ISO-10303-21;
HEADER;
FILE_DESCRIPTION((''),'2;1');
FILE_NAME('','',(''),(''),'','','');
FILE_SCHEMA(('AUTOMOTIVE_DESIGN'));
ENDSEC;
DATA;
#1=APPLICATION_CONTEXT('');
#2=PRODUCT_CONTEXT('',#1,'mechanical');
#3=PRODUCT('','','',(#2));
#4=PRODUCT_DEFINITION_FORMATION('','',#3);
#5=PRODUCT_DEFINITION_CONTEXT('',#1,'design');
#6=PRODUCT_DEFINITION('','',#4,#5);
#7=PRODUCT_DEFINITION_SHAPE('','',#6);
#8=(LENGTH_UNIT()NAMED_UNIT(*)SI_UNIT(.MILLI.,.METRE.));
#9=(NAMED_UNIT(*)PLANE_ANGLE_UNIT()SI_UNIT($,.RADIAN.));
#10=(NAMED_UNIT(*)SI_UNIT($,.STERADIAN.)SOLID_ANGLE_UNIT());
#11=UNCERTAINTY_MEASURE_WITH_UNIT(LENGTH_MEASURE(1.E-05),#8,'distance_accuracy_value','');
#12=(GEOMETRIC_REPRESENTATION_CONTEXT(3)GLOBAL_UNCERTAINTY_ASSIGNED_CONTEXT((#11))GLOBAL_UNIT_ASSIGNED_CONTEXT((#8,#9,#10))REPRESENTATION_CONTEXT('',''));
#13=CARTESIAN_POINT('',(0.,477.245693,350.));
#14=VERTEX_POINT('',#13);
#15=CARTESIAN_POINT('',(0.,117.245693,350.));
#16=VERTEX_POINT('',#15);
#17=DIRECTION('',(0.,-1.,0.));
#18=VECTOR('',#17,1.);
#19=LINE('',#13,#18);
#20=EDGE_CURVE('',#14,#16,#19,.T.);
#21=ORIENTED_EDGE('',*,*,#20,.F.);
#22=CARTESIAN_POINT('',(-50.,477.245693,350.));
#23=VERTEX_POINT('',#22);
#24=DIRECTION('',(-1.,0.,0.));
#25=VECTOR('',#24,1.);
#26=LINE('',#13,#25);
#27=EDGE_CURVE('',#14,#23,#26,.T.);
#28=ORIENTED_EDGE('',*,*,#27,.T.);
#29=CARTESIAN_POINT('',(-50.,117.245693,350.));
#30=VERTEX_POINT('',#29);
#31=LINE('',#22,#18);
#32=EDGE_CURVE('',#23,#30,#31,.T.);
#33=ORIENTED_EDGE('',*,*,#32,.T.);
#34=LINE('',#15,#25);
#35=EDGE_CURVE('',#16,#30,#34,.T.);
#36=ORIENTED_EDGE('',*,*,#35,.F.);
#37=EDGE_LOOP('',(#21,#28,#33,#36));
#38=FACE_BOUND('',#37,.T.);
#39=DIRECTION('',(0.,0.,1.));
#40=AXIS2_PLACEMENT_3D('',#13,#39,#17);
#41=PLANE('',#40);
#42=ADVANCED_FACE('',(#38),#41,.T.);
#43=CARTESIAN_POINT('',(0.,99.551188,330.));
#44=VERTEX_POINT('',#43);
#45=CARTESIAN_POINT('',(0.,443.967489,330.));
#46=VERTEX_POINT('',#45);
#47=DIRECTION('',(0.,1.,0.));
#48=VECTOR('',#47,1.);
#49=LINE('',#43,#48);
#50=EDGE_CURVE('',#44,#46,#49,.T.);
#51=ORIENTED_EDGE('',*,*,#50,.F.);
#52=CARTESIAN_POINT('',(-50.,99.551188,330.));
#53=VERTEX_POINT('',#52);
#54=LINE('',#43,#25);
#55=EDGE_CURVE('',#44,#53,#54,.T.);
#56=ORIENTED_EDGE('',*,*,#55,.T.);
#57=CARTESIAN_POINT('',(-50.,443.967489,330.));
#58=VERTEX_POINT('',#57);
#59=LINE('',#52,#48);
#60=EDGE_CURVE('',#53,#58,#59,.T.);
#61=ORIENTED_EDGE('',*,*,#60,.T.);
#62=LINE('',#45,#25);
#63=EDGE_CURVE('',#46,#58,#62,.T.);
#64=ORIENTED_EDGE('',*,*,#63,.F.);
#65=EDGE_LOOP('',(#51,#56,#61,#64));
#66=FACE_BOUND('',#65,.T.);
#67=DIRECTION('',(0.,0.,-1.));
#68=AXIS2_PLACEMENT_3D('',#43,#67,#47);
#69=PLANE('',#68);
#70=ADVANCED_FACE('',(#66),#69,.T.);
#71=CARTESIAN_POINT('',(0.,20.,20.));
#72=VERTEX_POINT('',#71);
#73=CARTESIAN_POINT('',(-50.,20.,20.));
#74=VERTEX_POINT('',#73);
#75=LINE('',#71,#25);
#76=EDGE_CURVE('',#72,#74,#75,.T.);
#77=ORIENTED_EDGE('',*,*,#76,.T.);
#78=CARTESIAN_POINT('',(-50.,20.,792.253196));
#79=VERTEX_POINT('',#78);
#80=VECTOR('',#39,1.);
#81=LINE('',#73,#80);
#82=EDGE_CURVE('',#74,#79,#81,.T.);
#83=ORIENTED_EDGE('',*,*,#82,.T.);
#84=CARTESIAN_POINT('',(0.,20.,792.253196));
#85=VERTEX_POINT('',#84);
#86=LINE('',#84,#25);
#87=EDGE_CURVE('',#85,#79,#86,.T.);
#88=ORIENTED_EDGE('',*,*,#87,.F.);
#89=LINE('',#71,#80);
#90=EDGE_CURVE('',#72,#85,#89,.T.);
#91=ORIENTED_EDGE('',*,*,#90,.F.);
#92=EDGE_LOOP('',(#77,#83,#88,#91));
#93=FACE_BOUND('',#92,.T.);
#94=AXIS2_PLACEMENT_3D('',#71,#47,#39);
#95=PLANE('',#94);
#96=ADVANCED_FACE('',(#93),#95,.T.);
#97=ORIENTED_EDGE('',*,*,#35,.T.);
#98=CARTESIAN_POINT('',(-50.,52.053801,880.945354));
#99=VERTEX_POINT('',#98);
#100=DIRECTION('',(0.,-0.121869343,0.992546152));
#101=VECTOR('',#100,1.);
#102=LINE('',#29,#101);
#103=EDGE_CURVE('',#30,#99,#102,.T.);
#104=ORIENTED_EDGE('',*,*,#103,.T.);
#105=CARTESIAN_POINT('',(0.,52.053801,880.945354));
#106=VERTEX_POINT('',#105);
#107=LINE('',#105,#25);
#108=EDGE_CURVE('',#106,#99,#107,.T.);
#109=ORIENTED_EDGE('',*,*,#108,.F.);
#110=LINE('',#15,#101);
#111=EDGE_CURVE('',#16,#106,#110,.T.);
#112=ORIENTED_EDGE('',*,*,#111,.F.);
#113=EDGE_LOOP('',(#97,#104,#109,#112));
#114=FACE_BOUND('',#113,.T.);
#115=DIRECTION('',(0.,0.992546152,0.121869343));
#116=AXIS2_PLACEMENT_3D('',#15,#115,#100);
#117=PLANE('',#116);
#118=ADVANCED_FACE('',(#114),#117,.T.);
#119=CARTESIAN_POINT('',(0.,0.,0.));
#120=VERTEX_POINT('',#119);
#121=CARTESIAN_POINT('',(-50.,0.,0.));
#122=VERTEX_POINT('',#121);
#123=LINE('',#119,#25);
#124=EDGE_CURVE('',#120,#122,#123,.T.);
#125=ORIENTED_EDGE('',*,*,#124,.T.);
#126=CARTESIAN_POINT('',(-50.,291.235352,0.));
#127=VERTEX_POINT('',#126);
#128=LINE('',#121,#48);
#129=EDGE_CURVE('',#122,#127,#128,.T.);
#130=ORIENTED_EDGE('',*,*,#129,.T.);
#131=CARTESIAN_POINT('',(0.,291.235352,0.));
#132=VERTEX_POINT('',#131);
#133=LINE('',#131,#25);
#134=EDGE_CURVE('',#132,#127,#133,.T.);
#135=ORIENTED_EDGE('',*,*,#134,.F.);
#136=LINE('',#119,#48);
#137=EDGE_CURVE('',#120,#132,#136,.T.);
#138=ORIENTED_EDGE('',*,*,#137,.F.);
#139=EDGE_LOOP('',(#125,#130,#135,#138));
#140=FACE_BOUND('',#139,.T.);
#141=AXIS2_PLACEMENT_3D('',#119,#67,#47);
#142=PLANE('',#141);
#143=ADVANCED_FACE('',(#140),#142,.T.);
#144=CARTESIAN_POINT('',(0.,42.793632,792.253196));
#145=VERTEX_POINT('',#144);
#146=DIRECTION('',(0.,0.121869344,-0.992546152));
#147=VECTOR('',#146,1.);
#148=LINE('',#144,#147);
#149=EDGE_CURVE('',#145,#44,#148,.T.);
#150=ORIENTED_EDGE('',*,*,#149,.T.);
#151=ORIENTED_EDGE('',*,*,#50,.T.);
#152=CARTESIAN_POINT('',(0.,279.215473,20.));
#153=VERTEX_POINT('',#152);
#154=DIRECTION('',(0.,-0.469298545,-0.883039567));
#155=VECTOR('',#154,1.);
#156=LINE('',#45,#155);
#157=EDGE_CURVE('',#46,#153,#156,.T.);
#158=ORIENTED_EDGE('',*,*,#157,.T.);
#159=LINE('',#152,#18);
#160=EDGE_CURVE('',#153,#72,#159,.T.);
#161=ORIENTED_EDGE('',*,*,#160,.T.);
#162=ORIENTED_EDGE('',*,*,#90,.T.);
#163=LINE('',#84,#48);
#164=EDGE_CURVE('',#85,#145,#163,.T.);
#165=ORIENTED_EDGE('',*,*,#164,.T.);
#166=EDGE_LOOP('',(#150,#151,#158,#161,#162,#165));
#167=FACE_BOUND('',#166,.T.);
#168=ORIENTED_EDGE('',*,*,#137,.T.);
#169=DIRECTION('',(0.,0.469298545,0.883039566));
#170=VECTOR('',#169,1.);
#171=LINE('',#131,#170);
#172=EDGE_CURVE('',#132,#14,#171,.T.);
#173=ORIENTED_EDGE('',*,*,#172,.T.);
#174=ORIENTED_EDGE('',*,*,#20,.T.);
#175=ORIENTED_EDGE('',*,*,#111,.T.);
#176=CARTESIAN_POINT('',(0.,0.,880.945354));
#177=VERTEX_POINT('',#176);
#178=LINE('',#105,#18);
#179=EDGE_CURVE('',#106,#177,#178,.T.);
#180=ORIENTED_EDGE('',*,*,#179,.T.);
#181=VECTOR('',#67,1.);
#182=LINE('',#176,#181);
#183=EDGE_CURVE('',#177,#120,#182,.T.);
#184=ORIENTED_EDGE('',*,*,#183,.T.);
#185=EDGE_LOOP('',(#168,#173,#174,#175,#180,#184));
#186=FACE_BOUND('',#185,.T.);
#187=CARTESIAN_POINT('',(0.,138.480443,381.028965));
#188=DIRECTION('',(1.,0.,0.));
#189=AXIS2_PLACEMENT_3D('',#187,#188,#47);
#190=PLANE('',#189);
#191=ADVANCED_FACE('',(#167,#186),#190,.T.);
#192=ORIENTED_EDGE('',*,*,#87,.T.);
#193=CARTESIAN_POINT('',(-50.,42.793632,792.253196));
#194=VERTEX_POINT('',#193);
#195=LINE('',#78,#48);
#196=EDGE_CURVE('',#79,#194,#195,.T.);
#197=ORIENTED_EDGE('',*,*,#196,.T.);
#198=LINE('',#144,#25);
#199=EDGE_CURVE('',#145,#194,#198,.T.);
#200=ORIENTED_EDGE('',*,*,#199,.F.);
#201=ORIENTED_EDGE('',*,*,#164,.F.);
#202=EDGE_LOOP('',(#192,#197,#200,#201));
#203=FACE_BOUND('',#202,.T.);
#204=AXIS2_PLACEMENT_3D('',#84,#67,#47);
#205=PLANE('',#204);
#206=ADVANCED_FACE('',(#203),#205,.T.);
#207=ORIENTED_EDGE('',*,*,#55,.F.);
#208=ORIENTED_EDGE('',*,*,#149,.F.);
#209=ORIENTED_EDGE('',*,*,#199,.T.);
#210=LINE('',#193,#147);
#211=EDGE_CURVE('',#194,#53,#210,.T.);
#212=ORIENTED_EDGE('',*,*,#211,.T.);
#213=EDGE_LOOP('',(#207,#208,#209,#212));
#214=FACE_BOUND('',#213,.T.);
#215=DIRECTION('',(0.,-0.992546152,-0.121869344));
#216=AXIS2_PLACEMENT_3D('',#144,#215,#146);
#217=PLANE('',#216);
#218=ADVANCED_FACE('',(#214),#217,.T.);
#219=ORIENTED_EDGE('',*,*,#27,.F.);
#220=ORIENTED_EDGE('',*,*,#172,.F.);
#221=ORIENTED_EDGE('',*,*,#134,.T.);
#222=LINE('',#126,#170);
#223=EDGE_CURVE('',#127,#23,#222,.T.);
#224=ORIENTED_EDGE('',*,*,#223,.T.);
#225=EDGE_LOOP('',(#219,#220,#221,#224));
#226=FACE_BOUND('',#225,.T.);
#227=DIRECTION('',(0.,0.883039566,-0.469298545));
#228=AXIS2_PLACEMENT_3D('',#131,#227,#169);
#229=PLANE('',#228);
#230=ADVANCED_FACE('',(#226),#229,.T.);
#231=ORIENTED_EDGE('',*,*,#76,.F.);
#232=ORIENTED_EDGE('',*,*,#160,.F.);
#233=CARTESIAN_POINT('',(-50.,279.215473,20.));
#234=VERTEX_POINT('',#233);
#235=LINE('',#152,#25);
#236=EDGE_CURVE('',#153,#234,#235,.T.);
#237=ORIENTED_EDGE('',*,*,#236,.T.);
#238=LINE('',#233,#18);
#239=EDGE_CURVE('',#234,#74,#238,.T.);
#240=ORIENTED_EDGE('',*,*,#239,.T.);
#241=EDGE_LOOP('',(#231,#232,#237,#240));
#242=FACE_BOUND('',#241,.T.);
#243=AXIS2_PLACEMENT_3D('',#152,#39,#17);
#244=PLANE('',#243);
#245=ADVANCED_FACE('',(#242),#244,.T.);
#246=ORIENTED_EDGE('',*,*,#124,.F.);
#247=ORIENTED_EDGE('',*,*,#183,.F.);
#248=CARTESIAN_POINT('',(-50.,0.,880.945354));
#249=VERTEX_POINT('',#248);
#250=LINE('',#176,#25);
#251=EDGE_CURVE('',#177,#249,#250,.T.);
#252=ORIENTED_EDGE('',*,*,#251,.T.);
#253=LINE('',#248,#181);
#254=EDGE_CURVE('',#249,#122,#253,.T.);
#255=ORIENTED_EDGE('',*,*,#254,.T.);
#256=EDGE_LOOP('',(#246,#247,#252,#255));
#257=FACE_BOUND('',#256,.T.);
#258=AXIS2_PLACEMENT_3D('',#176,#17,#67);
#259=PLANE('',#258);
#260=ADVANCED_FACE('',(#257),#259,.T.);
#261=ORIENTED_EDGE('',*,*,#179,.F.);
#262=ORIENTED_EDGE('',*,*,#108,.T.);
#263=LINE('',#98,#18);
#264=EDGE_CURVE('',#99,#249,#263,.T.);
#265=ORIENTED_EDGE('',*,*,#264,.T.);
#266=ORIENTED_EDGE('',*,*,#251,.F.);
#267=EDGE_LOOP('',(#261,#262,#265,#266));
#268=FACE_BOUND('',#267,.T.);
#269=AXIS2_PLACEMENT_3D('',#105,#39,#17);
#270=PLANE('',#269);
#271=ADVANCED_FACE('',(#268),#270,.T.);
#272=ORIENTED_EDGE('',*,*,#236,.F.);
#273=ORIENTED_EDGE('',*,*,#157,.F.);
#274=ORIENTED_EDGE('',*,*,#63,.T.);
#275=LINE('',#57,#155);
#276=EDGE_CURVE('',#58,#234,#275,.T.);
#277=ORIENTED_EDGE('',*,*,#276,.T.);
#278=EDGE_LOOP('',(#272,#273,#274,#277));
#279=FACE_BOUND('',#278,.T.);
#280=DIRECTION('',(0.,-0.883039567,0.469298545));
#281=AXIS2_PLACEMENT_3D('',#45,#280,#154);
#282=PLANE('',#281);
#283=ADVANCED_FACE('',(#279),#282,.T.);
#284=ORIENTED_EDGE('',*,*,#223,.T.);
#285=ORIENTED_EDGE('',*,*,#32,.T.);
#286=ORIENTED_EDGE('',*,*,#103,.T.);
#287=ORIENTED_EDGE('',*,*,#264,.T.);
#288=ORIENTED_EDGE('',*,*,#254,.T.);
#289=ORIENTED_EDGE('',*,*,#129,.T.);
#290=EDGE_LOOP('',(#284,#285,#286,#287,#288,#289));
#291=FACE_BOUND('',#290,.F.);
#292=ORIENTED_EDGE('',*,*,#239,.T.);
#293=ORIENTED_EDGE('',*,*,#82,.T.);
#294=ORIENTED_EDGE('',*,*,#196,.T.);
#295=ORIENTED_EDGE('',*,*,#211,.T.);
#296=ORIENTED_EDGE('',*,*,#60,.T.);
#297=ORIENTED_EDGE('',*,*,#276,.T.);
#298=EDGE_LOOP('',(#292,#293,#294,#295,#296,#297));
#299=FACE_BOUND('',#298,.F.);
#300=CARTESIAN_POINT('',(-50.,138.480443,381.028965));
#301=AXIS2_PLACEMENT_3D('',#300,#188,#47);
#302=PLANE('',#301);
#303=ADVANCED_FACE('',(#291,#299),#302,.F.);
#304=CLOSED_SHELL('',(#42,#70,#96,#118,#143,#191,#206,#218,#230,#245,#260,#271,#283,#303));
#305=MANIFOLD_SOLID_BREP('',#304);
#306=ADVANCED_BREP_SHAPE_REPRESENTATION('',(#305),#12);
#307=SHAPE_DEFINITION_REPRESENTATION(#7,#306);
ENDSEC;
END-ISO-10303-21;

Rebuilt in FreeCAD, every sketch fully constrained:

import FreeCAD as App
import Part
import Sketcher
Q = App.Units.Quantity


def add_polygon(sketch, points):
    """Adds a closed chain of lines whose ends are joined by coincident constraints."""
    first, n = sketch.GeometryCount, len(points)
    for a, b in zip(points, points[1:] + points[:1]):
        sketch.addGeometry(Part.LineSegment(App.Vector(*a, 0), App.Vector(*b, 0)), False)
    for i in range(n):
        sketch.addConstraint(Sketcher.Constraint("Coincident", first + i, 2, first + (i + 1) % n, 1))

doc = App.newDocument("Part")
body = doc.addObject("PartDesign::Body", "Body")

# Sketch on YZ plane
sketch1 = doc.addObject("Sketcher::SketchObject", "Sketch")
body.addObject(sketch1)
sketch1.AttachmentSupport = (doc.YZ_Plane, [""])
sketch1.MapMode = "FlatFace"
add_polygon(sketch1, [(291.235352, 0), (477.245693, 350), (117.245693, 350), (52.053801, 880.945354), (0, 880.945354), (0, 0)])  # lines 0-5
add_polygon(sketch1, [(443.967489, 330), (279.215473, 20), (20, 20), (20, 792.253196), (42.793632, 792.253196), (99.551188, 330)])  # lines 6-11
sketch1.addConstraint(Sketcher.Constraint("Horizontal", 1))
sketch1.addConstraint(Sketcher.Constraint("Horizontal", 3))
sketch1.addConstraint(Sketcher.Constraint("Vertical", 4))
sketch1.addConstraint(Sketcher.Constraint("Horizontal", 5))
sketch1.addConstraint(Sketcher.Constraint("Horizontal", 7))
sketch1.addConstraint(Sketcher.Constraint("Vertical", 8))
sketch1.addConstraint(Sketcher.Constraint("Horizontal", 9))
sketch1.addConstraint(Sketcher.Constraint("Horizontal", 11))
sketch1.addConstraint(Sketcher.Constraint("Coincident", 4, 2, -1, 1))
sketch1.addConstraint(Sketcher.Constraint("Parallel", 0, 6))
sketch1.addConstraint(Sketcher.Constraint("Parallel", 2, 10))
sketch1.addConstraint(Sketcher.Constraint("DistanceX", 1, 2, 1, 1, Q("360 mm")))
sketch1.addConstraint(Sketcher.Constraint("Angle", 2, Q("97 deg")))
sketch1.addConstraint(Sketcher.Constraint("DistanceY", -1, 1, 0, 2, Q("350 mm")))
sketch1.addConstraint(Sketcher.Constraint("DistanceY", -1, 1, 6, 2, Q("20 mm")))
sketch1.addConstraint(Sketcher.Constraint("DistanceX", -1, 1, 7, 2, Q("20 mm")))
sketch1.addConstraint(Sketcher.Constraint("DistanceY", -1, 1, 10, 2, Q("330 mm")))
sketch1.addConstraint(Sketcher.Constraint("DistanceX", 3, 2, 3, 1, Q("52.053801 mm")))
sketch1.addConstraint(Sketcher.Constraint("DistanceX", 11, 1, 11, 2, Q("344.416301 mm")))
sketch1.addConstraint(Sketcher.Constraint("DistanceX", 5, 1, 5, 2, Q("291.235352 mm")))
sketch1.addConstraint(Sketcher.Constraint("Distance", 0, Q("396.358231 mm")))
sketch1.addConstraint(Sketcher.Constraint("DistanceX", 7, 2, 7, 1, Q("259.215473 mm")))
sketch1.addConstraint(Sketcher.Constraint("DistanceX", 9, 1, 9, 2, Q("22.793632 mm")))
pad1 = doc.addObject("PartDesign::Pad", "Pad")
body.addObject(pad1)
pad1.Profile = sketch1
pad1.Length = 50
pad1.Reversed = True

doc.recompute()
